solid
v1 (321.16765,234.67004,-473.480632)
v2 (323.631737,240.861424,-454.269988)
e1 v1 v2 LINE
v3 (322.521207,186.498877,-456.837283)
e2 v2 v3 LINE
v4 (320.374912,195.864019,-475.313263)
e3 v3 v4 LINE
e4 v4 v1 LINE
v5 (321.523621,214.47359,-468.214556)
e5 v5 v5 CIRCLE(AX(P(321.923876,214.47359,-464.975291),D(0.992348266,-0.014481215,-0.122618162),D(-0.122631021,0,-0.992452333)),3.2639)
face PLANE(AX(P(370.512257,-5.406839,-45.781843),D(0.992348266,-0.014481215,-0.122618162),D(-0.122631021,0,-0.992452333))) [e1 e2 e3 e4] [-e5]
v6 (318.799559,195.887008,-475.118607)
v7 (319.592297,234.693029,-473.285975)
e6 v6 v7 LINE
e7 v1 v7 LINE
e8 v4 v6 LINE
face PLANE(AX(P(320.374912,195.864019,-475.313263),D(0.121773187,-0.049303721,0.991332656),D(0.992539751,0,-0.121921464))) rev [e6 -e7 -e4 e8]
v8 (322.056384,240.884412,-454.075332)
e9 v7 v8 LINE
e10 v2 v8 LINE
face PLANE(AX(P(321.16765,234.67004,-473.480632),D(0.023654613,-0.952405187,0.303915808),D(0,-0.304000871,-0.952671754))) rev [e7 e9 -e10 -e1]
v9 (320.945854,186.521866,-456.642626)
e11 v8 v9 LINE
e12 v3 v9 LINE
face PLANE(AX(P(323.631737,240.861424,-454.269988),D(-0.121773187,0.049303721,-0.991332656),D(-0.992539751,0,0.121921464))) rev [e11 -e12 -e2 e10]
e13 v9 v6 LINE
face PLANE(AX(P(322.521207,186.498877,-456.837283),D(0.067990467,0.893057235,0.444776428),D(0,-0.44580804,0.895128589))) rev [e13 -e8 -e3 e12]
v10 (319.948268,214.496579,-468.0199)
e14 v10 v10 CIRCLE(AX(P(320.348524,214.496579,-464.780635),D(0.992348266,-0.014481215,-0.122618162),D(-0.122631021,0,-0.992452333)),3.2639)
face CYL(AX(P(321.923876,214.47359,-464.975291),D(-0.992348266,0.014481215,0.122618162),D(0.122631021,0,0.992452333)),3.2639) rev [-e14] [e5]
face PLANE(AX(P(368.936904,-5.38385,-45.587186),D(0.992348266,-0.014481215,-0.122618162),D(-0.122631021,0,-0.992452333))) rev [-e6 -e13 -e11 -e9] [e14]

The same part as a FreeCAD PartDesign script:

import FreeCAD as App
import Part
import Sketcher
from FreeCAD import Vector
Q = App.Units.Quantity


def add_polygon(sketch, points):
    """Adds a closed chain of lines whose ends are joined by coincident constraints."""
    first, n = sketch.GeometryCount, len(points)
    for a, b in zip(points, points[1:] + points[:1]):
        sketch.addGeometry(Part.LineSegment(App.Vector(*a, 0), App.Vector(*b, 0)), False)
    for i in range(n):
        sketch.addConstraint(Sketcher.Constraint("Coincident", first + i, 2, first + (i + 1) % n, 1))

doc = App.newDocument("Part")
body = doc.addObject("PartDesign::Body", "Body")

sketch1 = body.newObject("Sketcher::SketchObject", "Sketch")
sketch1.Placement = App.Placement(Vector(368.936904, -5.38385, -45.587186), App.Rotation(Vector(-0.122605109, 0.001789161, -0.992453921), Vector(0.014591322, 0.999893541, 0), Vector(0.992348266, -0.014481215, -0.122618162), "ZXY"))
add_polygon(sketch1, [(411.594066, 245.557996), (414.180881, 191.185033), (432.797343, 200.517861), (430.950777, 239.331318)])
sketch1.addGeometry(Part.Circle(Vector(422.380767, 219.148052, 0), Vector(0, 0, 1), 3.2639), False)
sketch1.addConstraint([
    Sketcher.Constraint("Parallel", 0, 2),
    Sketcher.Constraint("Diameter", 4, Q("0.257 in")),
    Sketcher.Constraint("DistanceX", 3, 2, 4, 3, Q("10.786701 mm")),
    Sketcher.Constraint("Distance", 1, Q("20.824849 mm")),
    Sketcher.Constraint("Distance", 2, Q("38.857358 mm")),
    Sketcher.Constraint("DistanceX", -1, 1, 0, 2, Q("414.180881 mm")),
    Sketcher.Constraint("DistanceY", -1, 1, 1, 2, Q("200.517861 mm")),
    Sketcher.Constraint("DistanceY", -1, 1, 2, 2, Q("239.331318 mm")),
    Sketcher.Constraint("DistanceY", 0, 2, 4, 3, Q("27.963019 mm")),
    Sketcher.Constraint("DistanceX", 0, 2, 1, 2, Q("18.616461 mm")),
    Sketcher.Constraint("DistanceX", 4, 3, 2, 2, Q("8.57001 mm")),
])
pad1 = body.newObject("PartDesign::Pad", "Pad")
pad1.Profile = sketch1
pad1.Length = Q("0.0625 in")

doc.recompute()
